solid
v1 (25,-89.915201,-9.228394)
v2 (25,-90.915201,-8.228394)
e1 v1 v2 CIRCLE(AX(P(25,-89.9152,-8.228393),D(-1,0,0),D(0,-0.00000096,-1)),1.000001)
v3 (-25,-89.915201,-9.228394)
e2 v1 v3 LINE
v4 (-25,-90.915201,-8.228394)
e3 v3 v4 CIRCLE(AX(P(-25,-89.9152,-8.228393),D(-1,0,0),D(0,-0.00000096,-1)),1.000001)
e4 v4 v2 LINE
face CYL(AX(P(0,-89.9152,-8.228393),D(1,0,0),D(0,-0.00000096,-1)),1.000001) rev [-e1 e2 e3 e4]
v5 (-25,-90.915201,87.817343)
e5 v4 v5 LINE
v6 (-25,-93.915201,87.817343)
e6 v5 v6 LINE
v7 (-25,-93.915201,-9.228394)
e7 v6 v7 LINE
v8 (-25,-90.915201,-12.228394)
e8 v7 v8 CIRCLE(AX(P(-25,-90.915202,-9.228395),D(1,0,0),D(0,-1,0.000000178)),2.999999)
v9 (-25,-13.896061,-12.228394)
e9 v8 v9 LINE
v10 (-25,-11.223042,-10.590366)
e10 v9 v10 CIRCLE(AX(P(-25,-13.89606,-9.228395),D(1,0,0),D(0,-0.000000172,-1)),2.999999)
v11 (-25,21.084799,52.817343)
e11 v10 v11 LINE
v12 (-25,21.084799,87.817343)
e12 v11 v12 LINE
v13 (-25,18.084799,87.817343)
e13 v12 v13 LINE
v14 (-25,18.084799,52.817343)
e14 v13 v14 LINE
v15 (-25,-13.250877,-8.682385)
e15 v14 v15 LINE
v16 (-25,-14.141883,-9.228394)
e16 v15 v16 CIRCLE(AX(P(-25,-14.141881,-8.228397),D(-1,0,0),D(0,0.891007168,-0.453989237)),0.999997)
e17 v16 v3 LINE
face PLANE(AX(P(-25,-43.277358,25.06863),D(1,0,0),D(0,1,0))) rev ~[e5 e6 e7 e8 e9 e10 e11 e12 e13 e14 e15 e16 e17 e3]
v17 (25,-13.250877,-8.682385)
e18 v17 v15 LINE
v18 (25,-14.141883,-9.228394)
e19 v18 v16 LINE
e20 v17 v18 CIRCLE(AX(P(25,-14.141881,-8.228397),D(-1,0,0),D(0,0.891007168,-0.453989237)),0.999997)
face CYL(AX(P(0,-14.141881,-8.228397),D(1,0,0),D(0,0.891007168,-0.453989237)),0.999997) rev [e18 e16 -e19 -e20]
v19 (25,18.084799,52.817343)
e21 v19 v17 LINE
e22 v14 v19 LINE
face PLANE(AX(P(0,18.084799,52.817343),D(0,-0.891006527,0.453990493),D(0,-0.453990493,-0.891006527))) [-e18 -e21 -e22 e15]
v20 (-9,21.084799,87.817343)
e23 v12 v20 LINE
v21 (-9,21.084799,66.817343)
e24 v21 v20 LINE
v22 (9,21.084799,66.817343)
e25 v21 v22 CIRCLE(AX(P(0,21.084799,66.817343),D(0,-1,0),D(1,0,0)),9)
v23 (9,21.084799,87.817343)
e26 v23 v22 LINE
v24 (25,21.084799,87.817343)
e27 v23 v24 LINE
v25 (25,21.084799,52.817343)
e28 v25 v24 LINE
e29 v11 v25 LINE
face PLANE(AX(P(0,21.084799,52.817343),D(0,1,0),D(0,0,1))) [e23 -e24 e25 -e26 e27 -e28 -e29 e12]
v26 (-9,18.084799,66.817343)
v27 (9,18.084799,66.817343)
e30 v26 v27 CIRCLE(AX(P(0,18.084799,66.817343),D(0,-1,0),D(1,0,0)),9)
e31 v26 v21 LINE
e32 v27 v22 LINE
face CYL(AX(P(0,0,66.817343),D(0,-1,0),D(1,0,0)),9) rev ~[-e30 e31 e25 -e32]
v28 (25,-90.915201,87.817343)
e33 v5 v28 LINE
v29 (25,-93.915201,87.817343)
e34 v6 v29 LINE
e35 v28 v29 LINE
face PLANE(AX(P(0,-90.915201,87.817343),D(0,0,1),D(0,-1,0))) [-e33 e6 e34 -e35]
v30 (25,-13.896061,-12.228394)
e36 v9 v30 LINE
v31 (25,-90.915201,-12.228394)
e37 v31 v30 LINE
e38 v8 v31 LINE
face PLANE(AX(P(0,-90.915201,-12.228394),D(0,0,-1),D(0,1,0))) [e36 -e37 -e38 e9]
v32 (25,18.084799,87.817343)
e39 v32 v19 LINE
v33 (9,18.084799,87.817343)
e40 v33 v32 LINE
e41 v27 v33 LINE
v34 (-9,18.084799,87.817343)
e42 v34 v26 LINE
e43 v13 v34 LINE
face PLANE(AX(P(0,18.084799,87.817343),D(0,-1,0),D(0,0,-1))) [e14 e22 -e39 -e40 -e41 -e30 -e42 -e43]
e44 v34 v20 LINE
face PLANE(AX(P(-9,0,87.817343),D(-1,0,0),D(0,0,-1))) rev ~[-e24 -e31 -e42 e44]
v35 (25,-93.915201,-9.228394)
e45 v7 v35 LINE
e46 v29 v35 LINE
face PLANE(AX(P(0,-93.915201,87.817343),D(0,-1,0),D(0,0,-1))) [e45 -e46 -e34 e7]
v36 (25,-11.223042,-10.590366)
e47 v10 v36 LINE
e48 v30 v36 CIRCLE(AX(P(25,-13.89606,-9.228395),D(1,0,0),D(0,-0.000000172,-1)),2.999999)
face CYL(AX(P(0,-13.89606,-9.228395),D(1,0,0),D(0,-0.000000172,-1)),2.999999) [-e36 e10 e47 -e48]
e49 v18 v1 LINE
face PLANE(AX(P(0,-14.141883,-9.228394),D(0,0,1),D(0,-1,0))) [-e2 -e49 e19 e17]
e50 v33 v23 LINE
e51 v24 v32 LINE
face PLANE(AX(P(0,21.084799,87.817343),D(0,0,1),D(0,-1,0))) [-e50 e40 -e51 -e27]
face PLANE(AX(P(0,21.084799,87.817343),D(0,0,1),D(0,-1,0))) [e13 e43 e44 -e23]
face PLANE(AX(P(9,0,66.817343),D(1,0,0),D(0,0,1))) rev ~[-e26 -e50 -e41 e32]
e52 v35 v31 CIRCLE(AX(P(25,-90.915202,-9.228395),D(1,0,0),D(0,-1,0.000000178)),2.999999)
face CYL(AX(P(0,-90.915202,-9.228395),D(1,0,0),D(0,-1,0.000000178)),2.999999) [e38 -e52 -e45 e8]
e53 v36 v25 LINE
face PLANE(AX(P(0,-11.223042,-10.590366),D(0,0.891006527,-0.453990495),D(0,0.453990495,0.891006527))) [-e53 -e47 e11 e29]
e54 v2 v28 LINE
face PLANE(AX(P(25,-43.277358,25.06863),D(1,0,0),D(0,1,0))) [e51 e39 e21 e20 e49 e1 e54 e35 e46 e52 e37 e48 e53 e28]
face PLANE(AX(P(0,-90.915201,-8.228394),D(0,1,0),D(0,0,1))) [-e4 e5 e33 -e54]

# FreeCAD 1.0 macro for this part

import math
import FreeCAD as App
import Part
import Sketcher
Q = App.Units.Quantity

doc = App.newDocument("Part")
params = doc.addObject("Spreadsheet::Sheet", "Params")
for row, (alias, value) in enumerate([
    ("sketch1_radius", "1.000001 mm"),
    ("sketch1_radius2", "2.999999 mm"),
    ("sketch1_height", "35 mm"),
    ("pad1_length", "50 mm"),
    ("sketch2_radius", "9 mm"),
    ("sketch2_height", "21 mm"),
    ("pocket1_length", "25 mm"),
], start=1):
    params.set(f"A{row}", alias)
    params.set(f"B{row}", "=" + value)
    params.setAlias(f"B{row}", alias)

body = doc.addObject("PartDesign::Body", "Body")

sketch1 = body.newObject("Sketcher::SketchObject", "Sketch")
sketch1.AttachmentSupport = (doc.getObject("YZ_Plane"), [""])
sketch1.MapMode = "FlatFace"
sketch1.addGeometry(Part.ArcOfCircle(Part.Circle(App.Vector(-89.9, -8.2, 0), App.Vector(0, 0, 1), 1), math.radians(-180), math.radians(-90)), False)
sketch1.addGeometry(Part.LineSegment(App.Vector(-90.9, -8.2, 0), App.Vector(-90.9, 87.8, 0)), False)
sketch1.addGeometry(Part.LineSegment(App.Vector(-90.9, 87.8, 0), App.Vector(-93.9, 87.8, 0)), False)
sketch1.addGeometry(Part.LineSegment(App.Vector(-93.9, 87.8, 0), App.Vector(-93.9, -9.2, 0)), False)
sketch1.addGeometry(Part.ArcOfCircle(Part.Circle(App.Vector(-90.9, -9.2, 0), App.Vector(0, 0, 1), 3), math.radians(180), math.radians(270)), False)
sketch1.addGeometry(Part.LineSegment(App.Vector(-90.9, -12.2, 0), App.Vector(-13.9, -12.2, 0)), False)
sketch1.addGeometry(Part.ArcOfCircle(Part.Circle(App.Vector(-13.9, -9.2, 0), App.Vector(0, 0, 1), 3), math.radians(-90), math.radians(-27)), False)
sketch1.addGeometry(Part.LineSegment(App.Vector(-11.2, -10.6, 0), App.Vector(21.1, 52.8, 0)), False)
sketch1.addGeometry(Part.LineSegment(App.Vector(21.1, 52.8, 0), App.Vector(21.1, 87.8, 0)), False)
sketch1.addGeometry(Part.LineSegment(App.Vector(21.1, 87.8, 0), App.Vector(18.1, 87.8, 0)), False)
sketch1.addGeometry(Part.LineSegment(App.Vector(18.1, 87.8, 0), App.Vector(18.1, 52.8, 0)), False)
sketch1.addGeometry(Part.LineSegment(App.Vector(18.1, 52.8, 0), App.Vector(-13.3, -8.7, 0)), False)
sketch1.addGeometry(Part.ArcOfCircle(Part.Circle(App.Vector(-14.1, -8.2, 0), App.Vector(0, 0, 1), 1), math.radians(-90), math.radians(-27)), False)
sketch1.addGeometry(Part.LineSegment(App.Vector(-14.1, -9.2, 0), App.Vector(-89.9, -9.2, 0)), False)
sketch1.addConstraint(Sketcher.Constraint("Tangent", 0, 1, 1, 1))
sketch1.addConstraint(Sketcher.Constraint("Coincident", 1, 2, 2, 1))
sketch1.addConstraint(Sketcher.Constraint("Coincident", 2, 2, 3, 1))
sketch1.addConstraint(Sketcher.Constraint("Tangent", 3, 2, 4, 1))
sketch1.addConstraint(Sketcher.Constraint("Tangent", 4, 2, 5, 1))
sketch1.addConstraint(Sketcher.Constraint("Tangent", 5, 2, 6, 1))
sketch1.addConstraint(Sketcher.Constraint("Tangent", 6, 2, 7, 1))
sketch1.addConstraint(Sketcher.Constraint("Coincident", 7, 2, 8, 1))
sketch1.addConstraint(Sketcher.Constraint("Coincident", 8, 2, 9, 1))
sketch1.addConstraint(Sketcher.Constraint("Coincident", 9, 2, 10, 1))
sketch1.addConstraint(Sketcher.Constraint("Coincident", 10, 2, 11, 1))
sketch1.addConstraint(Sketcher.Constraint("Tangent", 11, 2, 12, 2))
sketch1.addConstraint(Sketcher.Constraint("Tangent", 12, 1, 13, 1))
sketch1.addConstraint(Sketcher.Constraint("Tangent", 13, 2, 0, 2))
sketch1.addConstraint(Sketcher.Constraint("Vertical", 1))
sketch1.addConstraint(Sketcher.Constraint("Horizontal", 2))
sketch1.addConstraint(Sketcher.Constraint("Vertical", 3))
sketch1.addConstraint(Sketcher.Constraint("Horizontal", 5))
sketch1.addConstraint(Sketcher.Constraint("Vertical", 8))
sketch1.addConstraint(Sketcher.Constraint("Horizontal", 9))
sketch1.addConstraint(Sketcher.Constraint("Vertical", 10))
sketch1.addConstraint(Sketcher.Constraint("Horizontal", 13))
sketch1.addConstraint(Sketcher.Constraint("Equal", 4, 6))
sketch1.addConstraint(Sketcher.Constraint("Parallel", 7, 11))
sketch1.addConstraint(Sketcher.Constraint("Horizontal", 2, 2, 8, 2))
sketch1.addConstraint(Sketcher.Constraint("Horizontal", 7, 2, 10, 2))
sketch1.addConstraint(Sketcher.Constraint("Horizontal", 3, 2, 12, 1))
sketch1.addConstraint(Sketcher.Constraint("Vertical", 4, 3, 0, 1))
sketch1.addConstraint(Sketcher.Constraint("Equal", 2, 9))
sketch1.addConstraint(Sketcher.Constraint("Radius", 0, 1.000001))
sketch1.addConstraint(Sketcher.Constraint("Radius", 4, 2.999999))
sketch1.addConstraint(Sketcher.Constraint("DistanceY", 8, 1, 8, 2, 35.0))
sketch1.addConstraint(Sketcher.Constraint("Angle", 7, Q("63 deg")))
sketch1.addConstraint(Sketcher.Constraint("DistanceY", 6, 3, 12, 3, 0.999998))
sketch1.addConstraint(Sketcher.Constraint("DistanceX", 1, 2, 7, 2, 112.0))
sketch1.addConstraint(Sketcher.Constraint("DistanceX", 5, 1, 5, 2, 77.01914))
sketch1.addConstraint(Sketcher.Constraint("DistanceX", 0, 3, -1, 1, 89.9152))
sketch1.addConstraint(Sketcher.Constraint("DistanceY", 0, 3, -1, 1, 8.228393))
sketch1.setExpression("Constraints[29]", "Params.sketch1_radius")
sketch1.setExpression("Constraints[30]", "Params.sketch1_radius2")
sketch1.setExpression("Constraints[31]", "Params.sketch1_height")
pad1 = body.newObject("PartDesign::Pad", "Pad")
pad1.Profile = sketch1
pad1.setExpression("Length", "Params.pad1_length")
pad1.Midplane = True

sketch2 = body.newObject("Sketcher::SketchObject", "Sketch001")
sketch2.AttachmentSupport = (doc.getObject("XZ_Plane"), [""])
sketch2.MapMode = "FlatFace"
sketch2.addGeometry(Part.ArcOfCircle(Part.Circle(App.Vector(0, 67, 0), App.Vector(0, 0, 1), 9), math.radians(180), math.radians(360)), False)
sketch2.addGeometry(Part.LineSegment(App.Vector(9, 67, 0), App.Vector(9, 88, 0)), False)
sketch2.addGeometry(Part.LineSegment(App.Vector(9, 88, 0), App.Vector(-9, 88, 0)), False)
sketch2.addGeometry(Part.LineSegment(App.Vector(-9, 88, 0), App.Vector(-9, 67, 0)), False)
sketch2.addConstraint(Sketcher.Constraint("Tangent", 0, 2, 1, 1))
sketch2.addConstraint(Sketcher.Constraint("Coincident", 1, 2, 2, 1))
sketch2.addConstraint(Sketcher.Constraint("Coincident", 2, 2, 3, 1))
sketch2.addConstraint(Sketcher.Constraint("Tangent", 3, 2, 0, 1))
sketch2.addConstraint(Sketcher.Constraint("Vertical", 1))
sketch2.addConstraint(Sketcher.Constraint("Horizontal", 2))
sketch2.addConstraint(Sketcher.Constraint("Vertical", 3))
sketch2.addConstraint(Sketcher.Constraint("PointOnObject", 0, 3, -2))
sketch2.addConstraint(Sketcher.Constraint("Radius", 0, 9.0))
sketch2.addConstraint(Sketcher.Constraint("DistanceY", 1, 1, 1, 2, 21.0))
sketch2.addConstraint(Sketcher.Constraint("DistanceY", -1, 1, 0, 3, 66.817343))
sketch2.setExpression("Constraints[8]", "Params.sketch2_radius")
sketch2.setExpression("Constraints[9]", "Params.sketch2_height")
pocket1 = body.newObject("PartDesign::Pocket", "Pocket")
pocket1.Profile = sketch2
pocket1.setExpression("Length", "Params.pocket1_length")

doc.recompute()
